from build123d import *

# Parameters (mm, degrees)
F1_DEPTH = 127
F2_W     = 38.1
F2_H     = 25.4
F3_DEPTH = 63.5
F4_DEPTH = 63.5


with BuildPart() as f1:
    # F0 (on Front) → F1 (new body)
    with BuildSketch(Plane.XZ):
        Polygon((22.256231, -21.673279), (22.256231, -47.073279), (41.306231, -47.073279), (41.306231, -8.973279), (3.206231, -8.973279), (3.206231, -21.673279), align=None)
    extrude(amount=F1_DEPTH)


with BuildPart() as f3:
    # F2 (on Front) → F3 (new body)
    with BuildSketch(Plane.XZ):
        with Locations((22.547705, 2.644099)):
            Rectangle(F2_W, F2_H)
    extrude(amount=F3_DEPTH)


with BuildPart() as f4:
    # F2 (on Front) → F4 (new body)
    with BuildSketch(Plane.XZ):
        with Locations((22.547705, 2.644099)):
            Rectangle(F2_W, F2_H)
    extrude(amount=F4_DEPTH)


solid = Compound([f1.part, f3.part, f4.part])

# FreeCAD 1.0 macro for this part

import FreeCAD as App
import Part
import Sketcher
Q = App.Units.Quantity

doc = App.newDocument("Part")
body = doc.addObject("PartDesign::Body", "Body")

sketch1 = body.newObject("Sketcher::SketchObject", "Sketch")
sketch1.AttachmentSupport = (doc.getObject("XZ_Plane"), [""])
sketch1.MapMode = "FlatFace"
sketch1.addGeometry([
    Part.LineSegment(App.Vector(22, -22, 0), App.Vector(22, -47, 0)),
    Part.LineSegment(App.Vector(22, -47, 0), App.Vector(41, -47, 0)),
    Part.LineSegment(App.Vector(41, -47, 0), App.Vector(41, -9, 0)),
    Part.LineSegment(App.Vector(41, -9, 0), App.Vector(3, -9, 0)),
    Part.LineSegment(App.Vector(3, -9, 0), App.Vector(3, -22, 0)),
    Part.LineSegment(App.Vector(3, -22, 0), App.Vector(22, -22, 0)),
], False)
sketch1.addConstraint([
    Sketcher.Constraint("Coincident", 0, 2, 1, 1),
    Sketcher.Constraint("Coincident", 1, 2, 2, 1),
    Sketcher.Constraint("Coincident", 2, 2, 3, 1),
    Sketcher.Constraint("Coincident", 3, 2, 4, 1),
    Sketcher.Constraint("Coincident", 4, 2, 5, 1),
    Sketcher.Constraint("Coincident", 5, 2, 0, 1),
    Sketcher.Constraint("Vertical", 0),
    Sketcher.Constraint("Horizontal", 1),
    Sketcher.Constraint("Vertical", 2),
    Sketcher.Constraint("Horizontal", 3),
    Sketcher.Constraint("Vertical", 4),
    Sketcher.Constraint("Horizontal", 5),
    Sketcher.Constraint("Equal", 1, 5),
    Sketcher.Constraint("Equal", 3, 2),
    Sketcher.Constraint("DistanceY", 0, 2, 0, 1, Q("1 in")),
    Sketcher.Constraint("DistanceX", 3, 2, 3, 1, Q("1.5 in")),
    Sketcher.Constraint("DistanceX", -1, 1, 0, 2, Q("22.256231 mm")),
    Sketcher.Constraint("DistanceY", 0, 2, -1, 1, Q("47.073279 mm")),
])
pad1 = body.newObject("PartDesign::Pad", "Pad")
pad1.Profile = sketch1
pad1.Length = Q("5 in")
body2 = doc.addObject("PartDesign::Body", "Body001")

sketch2 = body2.newObject("Sketcher::SketchObject", "Sketch001")
sketch2.AttachmentSupport = (doc.getObject("XZ_Plane001"), [""])
sketch2.MapMode = "FlatFace"
sketch2.addGeometry([
    Part.LineSegment(App.Vector(3, 15, 0), App.Vector(3, -10, 0)),
    Part.LineSegment(App.Vector(3, -10, 0), App.Vector(42, -10, 0)),
    Part.LineSegment(App.Vector(42, -10, 0), App.Vector(42, 15, 0)),
    Part.LineSegment(App.Vector(42, 15, 0), App.Vector(3, 15, 0)),
], False)
sketch2.addConstraint([
    Sketcher.Constraint("Coincident", 0, 2, 1, 1),
    Sketcher.Constraint("Coincident", 1, 2, 2, 1),
    Sketcher.Constraint("Coincident", 2, 2, 3, 1),
    Sketcher.Constraint("Coincident", 3, 2, 0, 1),
    Sketcher.Constraint("Vertical", 0),
    Sketcher.Constraint("Horizontal", 1),
    Sketcher.Constraint("Vertical", 2),
    Sketcher.Constraint("Horizontal", 3),
    Sketcher.Constraint("DistanceY", 0, 2, 0, 1, Q("1 in")),
    Sketcher.Constraint("DistanceX", 1, 1, 1, 2, Q("1.5 in")),
    Sketcher.Constraint("DistanceY", 0, 2, -1, 1, Q("10.055901 mm")),
    Sketcher.Constraint("DistanceX", -1, 1, 0, 2, Q("3.497705 mm")),
])
pad2 = body2.newObject("PartDesign::Pad", "Pad001")
pad2.Profile = sketch2
pad2.Length = Q("2.5 in")
body3 = doc.addObject("PartDesign::Body", "Body002")

sketch3 = body3.newObject("Sketcher::SketchObject", "Sketch002")
sketch3.AttachmentSupport = (doc.getObject("XZ_Plane002"), [""])
sketch3.MapMode = "FlatFace"
sketch3.addGeometry([
    Part.LineSegment(App.Vector(3, 15, 0), App.Vector(3, -10, 0)),
    Part.LineSegment(App.Vector(3, -10, 0), App.Vector(42, -10, 0)),
    Part.LineSegment(App.Vector(42, -10, 0), App.Vector(42, 15, 0)),
    Part.LineSegment(App.Vector(42, 15, 0), App.Vector(3, 15, 0)),
], False)
sketch3.addConstraint([
    Sketcher.Constraint("Coincident", 0, 2, 1, 1),
    Sketcher.Constraint("Coincident", 1, 2, 2, 1),
    Sketcher.Constraint("Coincident", 2, 2, 3, 1),
    Sketcher.Constraint("Coincident", 3, 2, 0, 1),
    Sketcher.Constraint("Vertical", 0),
    Sketcher.Constraint("Horizontal", 1),
    Sketcher.Constraint("Vertical", 2),
    Sketcher.Constraint("Horizontal", 3),
    Sketcher.Constraint("DistanceY", 0, 2, 0, 1, Q("1 in")),
    Sketcher.Constraint("DistanceX", 1, 1, 1, 2, Q("1.5 in")),
    Sketcher.Constraint("DistanceY", 0, 2, -1, 1, Q("10.055901 mm")),
    Sketcher.Constraint("DistanceX", -1, 1, 0, 2, Q("3.497705 mm")),
])
pad3 = body3.newObject("PartDesign::Pad", "Pad002")
pad3.Profile = sketch3
pad3.Length = Q("2.5 in")

doc.recompute()
